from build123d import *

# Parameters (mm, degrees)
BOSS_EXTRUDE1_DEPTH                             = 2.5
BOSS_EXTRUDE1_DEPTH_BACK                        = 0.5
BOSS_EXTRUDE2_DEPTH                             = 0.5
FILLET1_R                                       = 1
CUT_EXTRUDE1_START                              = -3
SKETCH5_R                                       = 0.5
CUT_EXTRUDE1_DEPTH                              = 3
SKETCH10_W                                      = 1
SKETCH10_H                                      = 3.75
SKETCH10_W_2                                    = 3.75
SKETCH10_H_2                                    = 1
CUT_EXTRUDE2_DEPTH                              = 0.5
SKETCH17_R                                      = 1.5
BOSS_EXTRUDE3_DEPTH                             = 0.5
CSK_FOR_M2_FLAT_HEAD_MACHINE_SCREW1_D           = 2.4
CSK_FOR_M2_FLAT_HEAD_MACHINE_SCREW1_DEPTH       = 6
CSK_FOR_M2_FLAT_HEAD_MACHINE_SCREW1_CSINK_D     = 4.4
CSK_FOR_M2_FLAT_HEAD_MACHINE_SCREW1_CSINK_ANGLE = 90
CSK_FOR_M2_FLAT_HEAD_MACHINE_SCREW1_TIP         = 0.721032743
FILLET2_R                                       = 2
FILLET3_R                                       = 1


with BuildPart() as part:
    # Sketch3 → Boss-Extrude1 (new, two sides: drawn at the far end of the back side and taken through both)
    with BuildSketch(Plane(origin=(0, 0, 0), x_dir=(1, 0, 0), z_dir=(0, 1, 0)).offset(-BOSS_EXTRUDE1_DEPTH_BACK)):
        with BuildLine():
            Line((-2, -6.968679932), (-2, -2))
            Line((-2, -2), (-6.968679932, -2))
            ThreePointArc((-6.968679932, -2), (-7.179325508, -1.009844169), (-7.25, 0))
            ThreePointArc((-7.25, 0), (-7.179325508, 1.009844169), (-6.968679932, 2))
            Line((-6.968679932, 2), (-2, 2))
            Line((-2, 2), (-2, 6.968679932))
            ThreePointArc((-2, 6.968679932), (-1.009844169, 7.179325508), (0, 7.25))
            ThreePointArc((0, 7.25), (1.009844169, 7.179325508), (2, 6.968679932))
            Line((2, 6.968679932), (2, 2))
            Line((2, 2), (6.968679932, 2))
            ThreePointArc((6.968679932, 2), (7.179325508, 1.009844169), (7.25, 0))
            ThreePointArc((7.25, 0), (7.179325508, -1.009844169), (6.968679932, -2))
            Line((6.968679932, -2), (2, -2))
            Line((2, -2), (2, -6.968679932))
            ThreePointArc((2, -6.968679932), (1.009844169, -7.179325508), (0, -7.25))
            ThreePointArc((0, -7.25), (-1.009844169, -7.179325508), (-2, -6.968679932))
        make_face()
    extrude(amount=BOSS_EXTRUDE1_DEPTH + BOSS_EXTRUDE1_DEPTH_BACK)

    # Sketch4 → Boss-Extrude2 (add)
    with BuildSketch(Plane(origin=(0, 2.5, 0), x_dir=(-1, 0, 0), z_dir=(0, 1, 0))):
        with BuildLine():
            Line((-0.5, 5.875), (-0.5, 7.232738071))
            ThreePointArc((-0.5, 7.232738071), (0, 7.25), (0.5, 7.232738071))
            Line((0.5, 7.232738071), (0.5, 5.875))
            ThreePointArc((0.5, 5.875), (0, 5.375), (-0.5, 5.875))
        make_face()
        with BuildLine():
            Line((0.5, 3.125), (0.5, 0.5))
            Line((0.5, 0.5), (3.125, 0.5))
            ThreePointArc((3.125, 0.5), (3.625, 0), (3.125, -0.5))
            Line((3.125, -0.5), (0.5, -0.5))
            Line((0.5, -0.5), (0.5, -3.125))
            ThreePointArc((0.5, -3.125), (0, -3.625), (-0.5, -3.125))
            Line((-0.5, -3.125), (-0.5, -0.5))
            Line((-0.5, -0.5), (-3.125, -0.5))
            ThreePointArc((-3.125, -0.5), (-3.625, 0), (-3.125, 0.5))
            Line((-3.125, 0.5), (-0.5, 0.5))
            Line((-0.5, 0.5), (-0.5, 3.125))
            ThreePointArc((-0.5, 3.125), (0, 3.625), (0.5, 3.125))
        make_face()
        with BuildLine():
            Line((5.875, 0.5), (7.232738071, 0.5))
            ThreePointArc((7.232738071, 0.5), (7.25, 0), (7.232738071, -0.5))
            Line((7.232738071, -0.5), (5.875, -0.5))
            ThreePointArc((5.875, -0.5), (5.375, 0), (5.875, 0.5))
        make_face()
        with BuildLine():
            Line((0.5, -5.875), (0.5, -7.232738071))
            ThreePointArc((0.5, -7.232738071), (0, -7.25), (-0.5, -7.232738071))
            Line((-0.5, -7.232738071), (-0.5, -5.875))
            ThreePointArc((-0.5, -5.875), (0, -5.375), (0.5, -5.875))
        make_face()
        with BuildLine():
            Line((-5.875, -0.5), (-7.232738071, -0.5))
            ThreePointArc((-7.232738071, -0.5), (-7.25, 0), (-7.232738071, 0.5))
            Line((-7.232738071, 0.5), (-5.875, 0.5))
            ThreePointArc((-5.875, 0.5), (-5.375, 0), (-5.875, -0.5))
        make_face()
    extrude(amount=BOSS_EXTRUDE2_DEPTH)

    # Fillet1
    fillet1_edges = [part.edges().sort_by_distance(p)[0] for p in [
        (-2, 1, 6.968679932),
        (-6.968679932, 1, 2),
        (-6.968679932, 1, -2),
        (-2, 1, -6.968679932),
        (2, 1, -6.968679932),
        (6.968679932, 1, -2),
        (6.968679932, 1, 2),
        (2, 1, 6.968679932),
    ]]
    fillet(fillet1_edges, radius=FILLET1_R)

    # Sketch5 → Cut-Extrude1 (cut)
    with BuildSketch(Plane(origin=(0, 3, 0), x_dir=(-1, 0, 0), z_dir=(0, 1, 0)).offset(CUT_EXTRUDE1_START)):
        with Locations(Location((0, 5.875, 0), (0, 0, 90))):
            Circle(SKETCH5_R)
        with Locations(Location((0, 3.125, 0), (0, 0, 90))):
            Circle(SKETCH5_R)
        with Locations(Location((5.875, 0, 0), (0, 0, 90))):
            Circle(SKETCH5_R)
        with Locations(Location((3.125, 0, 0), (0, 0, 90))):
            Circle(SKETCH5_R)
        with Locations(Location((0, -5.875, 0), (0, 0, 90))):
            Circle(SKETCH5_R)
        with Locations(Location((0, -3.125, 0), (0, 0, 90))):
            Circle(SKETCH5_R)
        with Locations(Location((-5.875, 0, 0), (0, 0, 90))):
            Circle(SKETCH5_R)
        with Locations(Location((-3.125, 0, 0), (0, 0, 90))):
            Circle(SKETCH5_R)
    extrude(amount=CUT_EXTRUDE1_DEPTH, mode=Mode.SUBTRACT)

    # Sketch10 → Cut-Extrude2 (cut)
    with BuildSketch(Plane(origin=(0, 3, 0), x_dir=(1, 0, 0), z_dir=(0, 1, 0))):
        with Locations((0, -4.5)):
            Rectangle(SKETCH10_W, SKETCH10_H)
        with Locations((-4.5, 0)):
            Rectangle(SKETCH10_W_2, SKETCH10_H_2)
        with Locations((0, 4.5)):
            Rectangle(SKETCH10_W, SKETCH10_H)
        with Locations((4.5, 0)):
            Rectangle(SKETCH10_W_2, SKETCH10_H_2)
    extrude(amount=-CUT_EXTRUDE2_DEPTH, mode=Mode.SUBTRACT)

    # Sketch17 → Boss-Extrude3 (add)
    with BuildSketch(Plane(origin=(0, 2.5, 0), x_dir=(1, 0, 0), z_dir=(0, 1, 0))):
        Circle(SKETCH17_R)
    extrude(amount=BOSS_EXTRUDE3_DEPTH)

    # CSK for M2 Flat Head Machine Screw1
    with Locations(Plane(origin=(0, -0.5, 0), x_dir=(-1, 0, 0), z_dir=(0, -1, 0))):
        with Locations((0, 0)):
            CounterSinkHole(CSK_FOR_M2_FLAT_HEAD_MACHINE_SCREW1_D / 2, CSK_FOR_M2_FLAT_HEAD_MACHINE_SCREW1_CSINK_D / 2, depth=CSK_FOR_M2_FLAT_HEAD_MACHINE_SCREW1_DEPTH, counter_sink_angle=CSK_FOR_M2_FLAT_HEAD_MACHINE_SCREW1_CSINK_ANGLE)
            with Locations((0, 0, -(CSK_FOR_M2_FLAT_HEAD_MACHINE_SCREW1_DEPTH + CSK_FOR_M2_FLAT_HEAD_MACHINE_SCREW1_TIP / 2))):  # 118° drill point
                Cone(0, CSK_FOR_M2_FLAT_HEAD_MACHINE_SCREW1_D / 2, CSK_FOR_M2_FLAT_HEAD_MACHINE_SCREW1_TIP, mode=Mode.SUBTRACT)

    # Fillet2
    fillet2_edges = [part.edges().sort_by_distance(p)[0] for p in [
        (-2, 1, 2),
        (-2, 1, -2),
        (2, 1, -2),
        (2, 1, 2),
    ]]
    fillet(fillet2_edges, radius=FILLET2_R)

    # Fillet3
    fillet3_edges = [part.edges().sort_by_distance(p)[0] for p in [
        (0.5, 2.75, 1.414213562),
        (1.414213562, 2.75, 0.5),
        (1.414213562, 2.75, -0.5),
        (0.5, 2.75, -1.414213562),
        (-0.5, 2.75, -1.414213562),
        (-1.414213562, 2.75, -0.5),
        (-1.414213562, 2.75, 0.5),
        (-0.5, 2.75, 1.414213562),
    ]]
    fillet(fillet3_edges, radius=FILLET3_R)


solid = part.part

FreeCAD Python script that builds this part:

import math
import FreeCAD as App
import Part
import Sketcher

V = App.Vector


def edges_at(feature, points):
    """Names of the edges that pass closest to the given points."""
    edges = feature.Shape.Edges
    near = lambda p: min(range(len(edges)), key=lambda i: edges[i].distToShape(Part.Vertex(*p))[0])
    return sorted({f"Edge{near(p) + 1}" for p in points})


def add_polygon(sketch, points):
    """Adds a closed chain of lines whose ends are joined by coincident constraints."""
    first, n = sketch.GeometryCount, len(points)
    for a, b in zip(points, points[1:] + points[:1]):
        sketch.addGeometry(Part.LineSegment(App.Vector(*a, 0), App.Vector(*b, 0)), False)
    for i in range(n):
        sketch.addConstraint(Sketcher.Constraint("Coincident", first + i, 2, first + (i + 1) % n, 1))

doc = App.newDocument("Part")
body = doc.addObject("PartDesign::Body", "Body")

# Sketch on XZ plane
sketch1 = body.newObject("Sketcher::SketchObject", "Sketch")
sketch1.AttachmentSupport = (doc.getObject("XZ_Plane"), [""])
sketch1.MapMode = "FlatFace"
sketch1.addGeometry([
    Part.LineSegment(V(-2, 2, 0), V(-2, 7, 0)),  # 0
    Part.ArcOfCircle(Part.Circle(V(0, 0, 0), V(0, 0, 1), 7.3), math.radians(90), math.radians(106.01)),  # 1
    Part.ArcOfCircle(Part.Circle(V(0, 0, 0), V(0, 0, 1), 7.3), math.radians(73.99), math.radians(90)),  # 2
    Part.LineSegment(V(2, 7, 0), V(2, 2, 0)),  # 3
    Part.LineSegment(V(2, 2, 0), V(7, 2, 0)),  # 4
    Part.ArcOfCircle(Part.Circle(V(0, 0, 0), V(0, 0, 1), 7.3), math.radians(0), math.radians(16.01)),  # 5
    Part.ArcOfCircle(Part.Circle(V(0, 0, 0), V(0, 0, 1), 7.3), math.radians(-16.01), math.radians(0)),  # 6
    Part.LineSegment(V(7, -2, 0), V(2, -2, 0)),  # 7
    Part.LineSegment(V(2, -2, 0), V(2, -7, 0)),  # 8
    Part.ArcOfCircle(Part.Circle(V(0, 0, 0), V(0, 0, 1), 7.3), math.radians(-90), math.radians(-73.99)),  # 9
    Part.ArcOfCircle(Part.Circle(V(0, 0, 0), V(0, 0, 1), 7.3), math.radians(-106.01), math.radians(-90)),  # 10
    Part.LineSegment(V(-2, -7, 0), V(-2, -2, 0)),  # 11
    Part.LineSegment(V(-2, -2, 0), V(-7, -2, 0)),  # 12
    Part.ArcOfCircle(Part.Circle(V(0, 0, 0), V(0, 0, 1), 7.3), math.radians(-180), math.radians(-163.99)),  # 13
    Part.ArcOfCircle(Part.Circle(V(0, 0, 0), V(0, 0, 1), 7.3), math.radians(163.99), math.radians(180)),  # 14
    Part.LineSegment(V(-7, 2, 0), V(-2, 2, 0)),  # 15
], False)
sketch1.addConstraint([
    Sketcher.Constraint("Coincident", 0, 2, 1, 2),
    Sketcher.Constraint("Tangent", 1, 1, 2, 2),
    Sketcher.Constraint("Coincident", 2, 1, 3, 1),
    Sketcher.Constraint("Coincident", 3, 2, 4, 1),
    Sketcher.Constraint("Coincident", 4, 2, 5, 2),
    Sketcher.Constraint("Tangent", 5, 1, 6, 2),
    Sketcher.Constraint("Coincident", 6, 1, 7, 1),
    Sketcher.Constraint("Coincident", 7, 2, 8, 1),
    Sketcher.Constraint("Coincident", 8, 2, 9, 2),
    Sketcher.Constraint("Tangent", 9, 1, 10, 2),
    Sketcher.Constraint("Coincident", 10, 1, 11, 1),
    Sketcher.Constraint("Coincident", 11, 2, 12, 1),
    Sketcher.Constraint("Coincident", 12, 2, 13, 2),
    Sketcher.Constraint("Tangent", 13, 1, 14, 2),
    Sketcher.Constraint("Coincident", 14, 1, 15, 1),
    Sketcher.Constraint("Coincident", 15, 2, 0, 1),
    Sketcher.Constraint("Vertical", 0),
    Sketcher.Constraint("Vertical", 3),
    Sketcher.Constraint("Horizontal", 4),
    Sketcher.Constraint("Horizontal", 7),
    Sketcher.Constraint("Vertical", 8),
    Sketcher.Constraint("Vertical", 11),
    Sketcher.Constraint("Horizontal", 12),
    Sketcher.Constraint("Horizontal", 15),
    Sketcher.Constraint("Coincident", 1, 3, -1, 1),
    Sketcher.Constraint("Coincident", 5, 3, -1, 1),
    Sketcher.Constraint("Coincident", 9, 3, -1, 1),
    Sketcher.Constraint("Coincident", 13, 3, -1, 1),
    Sketcher.Constraint("Equal", 1, 2),
    Sketcher.Constraint("Equal", 2, 5),
    Sketcher.Constraint("Equal", 5, 6),
    Sketcher.Constraint("Equal", 6, 9),
    Sketcher.Constraint("Equal", 9, 10),
    Sketcher.Constraint("Equal", 10, 13),
    Sketcher.Constraint("Equal", 13, 14),
    Sketcher.Constraint("Symmetric", 3, 2, 11, 2, -1, 1),
    Sketcher.Constraint("Symmetric", 7, 2, 15, 2, -1, 1),
    Sketcher.Constraint("Symmetric", 7, 2, 11, 2, -2),
    Sketcher.Constraint("PointOnObject", 1, 1, -2),
    Sketcher.Constraint("PointOnObject", 5, 1, -1),
    Sketcher.Constraint("PointOnObject", 9, 1, -2),
    Sketcher.Constraint("PointOnObject", 13, 1, -1),
    Sketcher.Constraint("Equal", 15, 0),
    Sketcher.Constraint("Radius", 1, 7.25),
    Sketcher.Constraint("DistanceX", 0, 2, -1, 1, 2.0),
])
pad1 = body.newObject("PartDesign::Pad", "Pad")
pad1.Profile = sketch1
pad1.Type = "TwoLengths"
pad1.Length = 2.5
pad1.Length2 = 0.5
pad1.Reversed = True

# Sketch on XZ plane
sketch2 = body.newObject("Sketcher::SketchObject", "Sketch001")
sketch2.AttachmentSupport = (doc.getObject("XZ_Plane"), [""])
sketch2.MapMode = "FlatFace"
sketch2.AttachmentOffset = App.Placement(V(0, 0, -2.5), App.Rotation())
sketch2.addGeometry([
    Part.LineSegment(V(0.5, 7.2, 0), V(0.5, 5.9, 0)),  # 0
    Part.ArcOfCircle(Part.Circle(V(0, 5.9, 0), V(0, 0, 1), 0.5), math.radians(180), math.radians(360)),  # 1
    Part.LineSegment(V(-0.5, 5.9, 0), V(-0.5, 7.2, 0)),  # 2
    Part.ArcOfCircle(Part.Circle(V(0, 0, 0), V(0, 0, 1), 7.3), math.radians(86.05), math.radians(93.95)),  # 3
    Part.LineSegment(V(-0.5, 0.5, 0), V(-0.5, 3.1, 0)),  # 4
    Part.ArcOfCircle(Part.Circle(V(0, 3.1, 0), V(0, 0, 1), 0.5), math.radians(0), math.radians(180)),  # 5
    Part.LineSegment(V(0.5, 3.1, 0), V(0.5, 0.5, 0)),  # 6
    Part.LineSegment(V(0.5, 0.5, 0), V(3.1, 0.5, 0)),  # 7
    Part.ArcOfCircle(Part.Circle(V(3.1, 0, 0), V(0, 0, 1), 0.5), math.radians(-90), math.radians(90)),  # 8
    Part.LineSegment(V(3.1, -0.5, 0), V(0.5, -0.5, 0)),  # 9
    Part.LineSegment(V(0.5, -0.5, 0), V(0.5, -3.1, 0)),  # 10
    Part.ArcOfCircle(Part.Circle(V(0, -3.1, 0), V(0, 0, 1), 0.5), math.radians(180), math.radians(360)),  # 11
    Part.LineSegment(V(-0.5, -3.1, 0), V(-0.5, -0.5, 0)),  # 12
    Part.LineSegment(V(-0.5, -0.5, 0), V(-3.1, -0.5, 0)),  # 13
    Part.ArcOfCircle(Part.Circle(V(-3.1, 0, 0), V(0, 0, 1), 0.5), math.radians(90), math.radians(270)),  # 14
    Part.LineSegment(V(-3.1, 0.5, 0), V(-0.5, 0.5, 0)),  # 15
    Part.LineSegment(V(-7.2, 0.5, 0), V(-5.9, 0.5, 0)),  # 16
    Part.ArcOfCircle(Part.Circle(V(-5.9, 0, 0), V(0, 0, 1), 0.5), math.radians(-90), math.radians(90)),  # 17
    Part.LineSegment(V(-5.9, -0.5, 0), V(-7.2, -0.5, 0)),  # 18
    Part.ArcOfCircle(Part.Circle(V(0, 0, 0), V(0, 0, 1), 7.3), math.radians(176.05), math.radians(183.95)),  # 19
    Part.LineSegment(V(-0.5, -7.2, 0), V(-0.5, -5.9, 0)),  # 20
    Part.ArcOfCircle(Part.Circle(V(0, -5.9, 0), V(0, 0, 1), 0.5), math.radians(0), math.radians(180)),  # 21
    Part.LineSegment(V(0.5, -5.9, 0), V(0.5, -7.2, 0)),  # 22
    Part.ArcOfCircle(Part.Circle(V(0, 0, 0), V(0, 0, 1), 7.3), math.radians(-93.95), math.radians(-86.05)),  # 23
    Part.LineSegment(V(7.2, -0.5, 0), V(5.9, -0.5, 0)),  # 24
    Part.ArcOfCircle(Part.Circle(V(5.9, 0, 0), V(0, 0, 1), 0.5), math.radians(90), math.radians(270)),  # 25
    Part.LineSegment(V(5.9, 0.5, 0), V(7.2, 0.5, 0)),  # 26
    Part.ArcOfCircle(Part.Circle(V(0, 0, 0), V(0, 0, 1), 7.3), math.radians(-3.95), math.radians(3.95)),  # 27
], False)
sketch2.addConstraint([
    Sketcher.Constraint("Tangent", 0, 2, 1, 2),
    Sketcher.Constraint("Tangent", 1, 1, 2, 1),
    Sketcher.Constraint("Coincident", 2, 2, 3, 2),
    Sketcher.Constraint("Coincident", 3, 1, 0, 1),
    Sketcher.Constraint("Tangent", 4, 2, 5, 2),
    Sketcher.Constraint("Tangent", 5, 1, 6, 1),
    Sketcher.Constraint("Coincident", 6, 2, 7, 1),
    Sketcher.Constraint("Tangent", 7, 2, 8, 2),
    Sketcher.Constraint("Tangent", 8, 1, 9, 1),
    Sketcher.Constraint("Coincident", 9, 2, 10, 1),
    Sketcher.Constraint("Tangent", 10, 2, 11, 2),
    Sketcher.Constraint("Tangent", 11, 1, 12, 1),
    Sketcher.Constraint("Coincident", 12, 2, 13, 1),
    Sketcher.Constraint("Tangent", 13, 2, 14, 2),
    Sketcher.Constraint("Tangent", 14, 1, 15, 1),
    Sketcher.Constraint("Coincident", 15, 2, 4, 1),
    Sketcher.Constraint("Tangent", 16, 2, 17, 2),
    Sketcher.Constraint("Tangent", 17, 1, 18, 1),
    Sketcher.Constraint("Coincident", 18, 2, 19, 2),
    Sketcher.Constraint("Coincident", 19, 1, 16, 1),
    Sketcher.Constraint("Tangent", 20, 2, 21, 2),
    Sketcher.Constraint("Tangent", 21, 1, 22, 1),
    Sketcher.Constraint("Coincident", 22, 2, 23, 2),
    Sketcher.Constraint("Coincident", 23, 1, 20, 1),
    Sketcher.Constraint("Tangent", 24, 2, 25, 2),
    Sketcher.Constraint("Tangent", 25, 1, 26, 1),
    Sketcher.Constraint("Coincident", 26, 2, 27, 2),
    Sketcher.Constraint("Coincident", 27, 1, 24, 1),
    Sketcher.Constraint("Vertical", 0),
    Sketcher.Constraint("Vertical", 2),
    Sketcher.Constraint("Vertical", 4),
    Sketcher.Constraint("Vertical", 6),
    Sketcher.Constraint("Horizontal", 7),
    Sketcher.Constraint("Horizontal", 9),
    Sketcher.Constraint("Vertical", 10),
    Sketcher.Constraint("Vertical", 12),
    Sketcher.Constraint("Horizontal", 13),
    Sketcher.Constraint("Horizontal", 15),
    Sketcher.Constraint("Horizontal", 16),
    Sketcher.Constraint("Horizontal", 18),
    Sketcher.Constraint("Vertical", 20),
    Sketcher.Constraint("Vertical", 22),
    Sketcher.Constraint("Horizontal", 24),
    Sketcher.Constraint("Horizontal", 26),
    Sketcher.Constraint("Coincident", 3, 3, -1, 1),
    Sketcher.Constraint("Coincident", 19, 3, -1, 1),
    Sketcher.Constraint("Coincident", 23, 3, -1, 1),
    Sketcher.Constraint("Coincident", 27, 3, -1, 1),
    Sketcher.Constraint("Equal", 1, 5),
    Sketcher.Constraint("Equal", 5, 8),
    Sketcher.Constraint("Equal", 8, 11),
    Sketcher.Constraint("Equal", 11, 14),
    Sketcher.Constraint("Equal", 14, 17),
    Sketcher.Constraint("Equal", 3, 19),
    Sketcher.Constraint("Equal", 17, 21),
    Sketcher.Constraint("Equal", 19, 23),
    Sketcher.Constraint("Equal", 21, 25),
    Sketcher.Constraint("Equal", 23, 27),
    Sketcher.Constraint("Symmetric", 5, 3, 11, 3, -1, 1),
    Sketcher.Constraint("Symmetric", 8, 3, 14, 3, -1, 1),
    Sketcher.Constraint("Symmetric", 1, 3, 21, 3, -1, 1),
    Sketcher.Constraint("Symmetric", 17, 3, 25, 3, -1, 1),
    Sketcher.Constraint("Symmetric", 9, 2, 12, 2, -2),
    Sketcher.Constraint("PointOnObject", 1, 3, -2),
    Sketcher.Constraint("PointOnObject", 17, 3, -1),
    Sketcher.Constraint("Equal", 26, 0),
    Sketcher.Constraint("Equal", 15, 4),
    Sketcher.Constraint("Radius", 1, 0.5),
    Sketcher.Constraint("Radius", 3, 7.25),
    Sketcher.Constraint("DistanceY", 11, 3, 1, 3, 9.0),
    Sketcher.Constraint("DistanceX", 7, 1, 7, 2, 2.625),
])
pad2 = body.newObject("PartDesign::Pad", "Pad001")
pad2.Profile = sketch2
pad2.Length = 0.5
pad2.Reversed = True
doc.recompute()

fillet = body.newObject("PartDesign::Fillet", "Fillet")
fillet.Base = (pad2, edges_at(pad2, [
    (-2, 1, 6.969),
    (-6.969, 1, 2),
    (-6.969, 1, -2),
    (-2, 1, -6.969),
    (2, 1, -6.969),
    (6.969, 1, -2),
    (6.969, 1, 2),
    (2, 1, 6.969),
]))
fillet.Radius = 1

# Sketch on XZ plane
sketch3 = body.newObject("Sketcher::SketchObject", "Sketch002")
sketch3.AttachmentSupport = (doc.getObject("XZ_Plane"), [""])
sketch3.MapMode = "FlatFace"
sketch3.addGeometry([
    Part.Circle(V(0, 5.9, 0), V(0, 0, 1), 0.5),  # 0
    Part.Circle(V(0, 3.1, 0), V(0, 0, 1), 0.5),  # 1
    Part.Circle(V(-5.9, 0, 0), V(0, 0, 1), 0.5),  # 2
    Part.Circle(V(-3.1, 0, 0), V(0, 0, 1), 0.5),  # 3
    Part.Circle(V(0, -5.9, 0), V(0, 0, 1), 0.5),  # 4
    Part.Circle(V(0, -3.1, 0), V(0, 0, 1), 0.5),  # 5
    Part.Circle(V(5.9, 0, 0), V(0, 0, 1), 0.5),  # 6
    Part.Circle(V(3.1, 0, 0), V(0, 0, 1), 0.5),  # 7
], False)
sketch3.addConstraint([
    Sketcher.Constraint("Equal", 0, 1),
    Sketcher.Constraint("Equal", 1, 2),
    Sketcher.Constraint("Equal", 2, 3),
    Sketcher.Constraint("Equal", 3, 4),
    Sketcher.Constraint("Equal", 4, 5),
    Sketcher.Constraint("Equal", 5, 6),
    Sketcher.Constraint("Equal", 6, 7),
    Sketcher.Constraint("Symmetric", 0, 3, 4, 3, -1, 1),
    Sketcher.Constraint("Symmetric", 1, 3, 5, 3, -1, 1),
    Sketcher.Constraint("Symmetric", 2, 3, 6, 3, -1, 1),
    Sketcher.Constraint("Symmetric", 3, 3, 7, 3, -1, 1),
    Sketcher.Constraint("PointOnObject", 0, 3, -2),
    Sketcher.Constraint("PointOnObject", 1, 3, -2),
    Sketcher.Constraint("PointOnObject", 2, 3, -1),
    Sketcher.Constraint("PointOnObject", 3, 3, -1),
    Sketcher.Constraint("Diameter", 0, 1.0),
    Sketcher.Constraint("DistanceY", 4, 3, 1, 3, 9.0),
    Sketcher.Constraint("DistanceX", 3, 3, 6, 3, 9.0),
    Sketcher.Constraint("DistanceY", 1, 3, 0, 3, 2.75),
    Sketcher.Constraint("DistanceX", 2, 3, 3, 3, 2.75),
])
pocket1 = body.newObject("PartDesign::Pocket", "Pocket")
pocket1.Profile = sketch3
pocket1.Length = 3

# Sketch on XZ plane
sketch4 = body.newObject("Sketcher::SketchObject", "Sketch003")
sketch4.AttachmentSupport = (doc.getObject("XZ_Plane"), [""])
sketch4.MapMode = "FlatFace"
sketch4.AttachmentOffset = App.Placement(V(0, 0, -3), App.Rotation())
add_polygon(sketch4, [(-0.5, 2.6), (-0.5, 6.4), (0.5, 6.4), (0.5, 2.6)])  # lines 0-3
add_polygon(sketch4, [(-6.4, -0.5), (-6.4, 0.5), (-2.6, 0.5), (-2.6, -0.5)])  # lines 4-7
add_polygon(sketch4, [(-0.5, -6.4), (-0.5, -2.6), (0.5, -2.6), (0.5, -6.4)])  # lines 8-11
add_polygon(sketch4, [(2.6, -0.5), (2.6, 0.5), (6.4, 0.5), (6.4, -0.5)])  # lines 12-15
sketch4.addConstraint([
    Sketcher.Constraint("Vertical", 0),
    Sketcher.Constraint("Horizontal", 1),
    Sketcher.Constraint("Vertical", 2),
    Sketcher.Constraint("Horizontal", 3),
    Sketcher.Constraint("Vertical", 4),
    Sketcher.Constraint("Horizontal", 5),
    Sketcher.Constraint("Vertical", 6),
    Sketcher.Constraint("Horizontal", 7),
    Sketcher.Constraint("Vertical", 8),
    Sketcher.Constraint("Horizontal", 9),
    Sketcher.Constraint("Vertical", 10),
    Sketcher.Constraint("Horizontal", 11),
    Sketcher.Constraint("Vertical", 12),
    Sketcher.Constraint("Horizontal", 13),
    Sketcher.Constraint("Vertical", 14),
    Sketcher.Constraint("Horizontal", 15),
    Sketcher.Constraint("Symmetric", 2, 2, 8, 2, -1, 1),
    Sketcher.Constraint("Symmetric", 0, 2, 10, 2, -1, 1),
    Sketcher.Constraint("Symmetric", 6, 2, 12, 2, -1, 1),
    Sketcher.Constraint("Symmetric", 4, 2, 14, 2, -1, 1),
    Sketcher.Constraint("Horizontal", 5, 2, 12, 2),
    Sketcher.Constraint("Vertical", 3, 2, 8, 2),
    Sketcher.Constraint("Equal", 15, 0),
    Sketcher.Constraint("Equal", 11, 4),
    Sketcher.Constraint("DistanceX", 1, 1, 1, 2, 1.0),
    Sketcher.Constraint("DistanceY", 10, 2, 2, 2, 9.0),
    Sketcher.Constraint("DistanceX", 5, 1, 5, 2, 3.75),
    Sketcher.Constraint("DistanceX", 5, 2, 12, 2, 5.25),
])
pocket2 = body.newObject("PartDesign::Pocket", "Pocket001")
pocket2.Profile = sketch4
pocket2.Length = 0.5
pocket2.Reversed = True

# Sketch on XZ plane
sketch5 = body.newObject("Sketcher::SketchObject", "Sketch004")
sketch5.AttachmentSupport = (doc.getObject("XZ_Plane"), [""])
sketch5.MapMode = "FlatFace"
sketch5.AttachmentOffset = App.Placement(V(0, 0, -2.5), App.Rotation())
sketch5.addGeometry(Part.Circle(V(0, 0, 0), V(0, 0, 1), 1.5), False)
sketch5.addConstraint([
    Sketcher.Constraint("Coincident", 0, 3, -1, 1),
    Sketcher.Constraint("Diameter", 0, 3.0),
])
pad3 = body.newObject("PartDesign::Pad", "Pad002")
pad3.Profile = sketch5
pad3.Length = 0.5
pad3.Reversed = True

# Sketch on XZ plane
sketch6 = body.newObject("Sketcher::SketchObject", "Sketch005")
sketch6.AttachmentSupport = (doc.getObject("XZ_Plane"), [""])
sketch6.MapMode = "FlatFace"
sketch6.AttachmentOffset = App.Placement(V(0, 0, 0.5), App.Rotation())
sketch6.addGeometry(Part.Circle(V(0, 0, 0), V(0, 0, 1), 1.2), False)
sketch6.addConstraint([
    Sketcher.Constraint("Coincident", 0, 3, -1, 1),
    Sketcher.Constraint("Diameter", 0, 2.4),
])
doc.recompute()
hole = body.newObject("PartDesign::Hole", "Hole")
hole.Profile = sketch6
hole.ThreadType = "None"
hole.Diameter = 2.4
hole.DepthType = "Dimension"
hole.Depth = 6
hole.DrillPoint = "Angled"
hole.DrillPointAngle = 118
hole.HoleCutType = "Countersink"
hole.HoleCutDiameter = 4.4
hole.HoleCutCountersinkAngle = 90
doc.recompute()

fillet2 = body.newObject("PartDesign::Fillet", "Fillet001")
fillet2.Base = (hole, edges_at(hole, [
    (-2, 1, 2),
    (-2, 1, -2),
    (2, 1, -2),
    (2, 1, 2),
]))
fillet2.Radius = 2
doc.recompute()

fillet3 = body.newObject("PartDesign::Fillet", "Fillet002")
fillet3.Base = (fillet2, edges_at(fillet2, [
    (0.5, 2.75, 1.414),
    (1.414, 2.75, 0.5),
    (1.414, 2.75, -0.5),
    (0.5, 2.75, -1.414),
    (-0.5, 2.75, -1.414),
    (-1.414, 2.75, -0.5),
    (-1.414, 2.75, 0.5),
    (-0.5, 2.75, 1.414),
]))
fillet3.Radius = 1

doc.recompute()
